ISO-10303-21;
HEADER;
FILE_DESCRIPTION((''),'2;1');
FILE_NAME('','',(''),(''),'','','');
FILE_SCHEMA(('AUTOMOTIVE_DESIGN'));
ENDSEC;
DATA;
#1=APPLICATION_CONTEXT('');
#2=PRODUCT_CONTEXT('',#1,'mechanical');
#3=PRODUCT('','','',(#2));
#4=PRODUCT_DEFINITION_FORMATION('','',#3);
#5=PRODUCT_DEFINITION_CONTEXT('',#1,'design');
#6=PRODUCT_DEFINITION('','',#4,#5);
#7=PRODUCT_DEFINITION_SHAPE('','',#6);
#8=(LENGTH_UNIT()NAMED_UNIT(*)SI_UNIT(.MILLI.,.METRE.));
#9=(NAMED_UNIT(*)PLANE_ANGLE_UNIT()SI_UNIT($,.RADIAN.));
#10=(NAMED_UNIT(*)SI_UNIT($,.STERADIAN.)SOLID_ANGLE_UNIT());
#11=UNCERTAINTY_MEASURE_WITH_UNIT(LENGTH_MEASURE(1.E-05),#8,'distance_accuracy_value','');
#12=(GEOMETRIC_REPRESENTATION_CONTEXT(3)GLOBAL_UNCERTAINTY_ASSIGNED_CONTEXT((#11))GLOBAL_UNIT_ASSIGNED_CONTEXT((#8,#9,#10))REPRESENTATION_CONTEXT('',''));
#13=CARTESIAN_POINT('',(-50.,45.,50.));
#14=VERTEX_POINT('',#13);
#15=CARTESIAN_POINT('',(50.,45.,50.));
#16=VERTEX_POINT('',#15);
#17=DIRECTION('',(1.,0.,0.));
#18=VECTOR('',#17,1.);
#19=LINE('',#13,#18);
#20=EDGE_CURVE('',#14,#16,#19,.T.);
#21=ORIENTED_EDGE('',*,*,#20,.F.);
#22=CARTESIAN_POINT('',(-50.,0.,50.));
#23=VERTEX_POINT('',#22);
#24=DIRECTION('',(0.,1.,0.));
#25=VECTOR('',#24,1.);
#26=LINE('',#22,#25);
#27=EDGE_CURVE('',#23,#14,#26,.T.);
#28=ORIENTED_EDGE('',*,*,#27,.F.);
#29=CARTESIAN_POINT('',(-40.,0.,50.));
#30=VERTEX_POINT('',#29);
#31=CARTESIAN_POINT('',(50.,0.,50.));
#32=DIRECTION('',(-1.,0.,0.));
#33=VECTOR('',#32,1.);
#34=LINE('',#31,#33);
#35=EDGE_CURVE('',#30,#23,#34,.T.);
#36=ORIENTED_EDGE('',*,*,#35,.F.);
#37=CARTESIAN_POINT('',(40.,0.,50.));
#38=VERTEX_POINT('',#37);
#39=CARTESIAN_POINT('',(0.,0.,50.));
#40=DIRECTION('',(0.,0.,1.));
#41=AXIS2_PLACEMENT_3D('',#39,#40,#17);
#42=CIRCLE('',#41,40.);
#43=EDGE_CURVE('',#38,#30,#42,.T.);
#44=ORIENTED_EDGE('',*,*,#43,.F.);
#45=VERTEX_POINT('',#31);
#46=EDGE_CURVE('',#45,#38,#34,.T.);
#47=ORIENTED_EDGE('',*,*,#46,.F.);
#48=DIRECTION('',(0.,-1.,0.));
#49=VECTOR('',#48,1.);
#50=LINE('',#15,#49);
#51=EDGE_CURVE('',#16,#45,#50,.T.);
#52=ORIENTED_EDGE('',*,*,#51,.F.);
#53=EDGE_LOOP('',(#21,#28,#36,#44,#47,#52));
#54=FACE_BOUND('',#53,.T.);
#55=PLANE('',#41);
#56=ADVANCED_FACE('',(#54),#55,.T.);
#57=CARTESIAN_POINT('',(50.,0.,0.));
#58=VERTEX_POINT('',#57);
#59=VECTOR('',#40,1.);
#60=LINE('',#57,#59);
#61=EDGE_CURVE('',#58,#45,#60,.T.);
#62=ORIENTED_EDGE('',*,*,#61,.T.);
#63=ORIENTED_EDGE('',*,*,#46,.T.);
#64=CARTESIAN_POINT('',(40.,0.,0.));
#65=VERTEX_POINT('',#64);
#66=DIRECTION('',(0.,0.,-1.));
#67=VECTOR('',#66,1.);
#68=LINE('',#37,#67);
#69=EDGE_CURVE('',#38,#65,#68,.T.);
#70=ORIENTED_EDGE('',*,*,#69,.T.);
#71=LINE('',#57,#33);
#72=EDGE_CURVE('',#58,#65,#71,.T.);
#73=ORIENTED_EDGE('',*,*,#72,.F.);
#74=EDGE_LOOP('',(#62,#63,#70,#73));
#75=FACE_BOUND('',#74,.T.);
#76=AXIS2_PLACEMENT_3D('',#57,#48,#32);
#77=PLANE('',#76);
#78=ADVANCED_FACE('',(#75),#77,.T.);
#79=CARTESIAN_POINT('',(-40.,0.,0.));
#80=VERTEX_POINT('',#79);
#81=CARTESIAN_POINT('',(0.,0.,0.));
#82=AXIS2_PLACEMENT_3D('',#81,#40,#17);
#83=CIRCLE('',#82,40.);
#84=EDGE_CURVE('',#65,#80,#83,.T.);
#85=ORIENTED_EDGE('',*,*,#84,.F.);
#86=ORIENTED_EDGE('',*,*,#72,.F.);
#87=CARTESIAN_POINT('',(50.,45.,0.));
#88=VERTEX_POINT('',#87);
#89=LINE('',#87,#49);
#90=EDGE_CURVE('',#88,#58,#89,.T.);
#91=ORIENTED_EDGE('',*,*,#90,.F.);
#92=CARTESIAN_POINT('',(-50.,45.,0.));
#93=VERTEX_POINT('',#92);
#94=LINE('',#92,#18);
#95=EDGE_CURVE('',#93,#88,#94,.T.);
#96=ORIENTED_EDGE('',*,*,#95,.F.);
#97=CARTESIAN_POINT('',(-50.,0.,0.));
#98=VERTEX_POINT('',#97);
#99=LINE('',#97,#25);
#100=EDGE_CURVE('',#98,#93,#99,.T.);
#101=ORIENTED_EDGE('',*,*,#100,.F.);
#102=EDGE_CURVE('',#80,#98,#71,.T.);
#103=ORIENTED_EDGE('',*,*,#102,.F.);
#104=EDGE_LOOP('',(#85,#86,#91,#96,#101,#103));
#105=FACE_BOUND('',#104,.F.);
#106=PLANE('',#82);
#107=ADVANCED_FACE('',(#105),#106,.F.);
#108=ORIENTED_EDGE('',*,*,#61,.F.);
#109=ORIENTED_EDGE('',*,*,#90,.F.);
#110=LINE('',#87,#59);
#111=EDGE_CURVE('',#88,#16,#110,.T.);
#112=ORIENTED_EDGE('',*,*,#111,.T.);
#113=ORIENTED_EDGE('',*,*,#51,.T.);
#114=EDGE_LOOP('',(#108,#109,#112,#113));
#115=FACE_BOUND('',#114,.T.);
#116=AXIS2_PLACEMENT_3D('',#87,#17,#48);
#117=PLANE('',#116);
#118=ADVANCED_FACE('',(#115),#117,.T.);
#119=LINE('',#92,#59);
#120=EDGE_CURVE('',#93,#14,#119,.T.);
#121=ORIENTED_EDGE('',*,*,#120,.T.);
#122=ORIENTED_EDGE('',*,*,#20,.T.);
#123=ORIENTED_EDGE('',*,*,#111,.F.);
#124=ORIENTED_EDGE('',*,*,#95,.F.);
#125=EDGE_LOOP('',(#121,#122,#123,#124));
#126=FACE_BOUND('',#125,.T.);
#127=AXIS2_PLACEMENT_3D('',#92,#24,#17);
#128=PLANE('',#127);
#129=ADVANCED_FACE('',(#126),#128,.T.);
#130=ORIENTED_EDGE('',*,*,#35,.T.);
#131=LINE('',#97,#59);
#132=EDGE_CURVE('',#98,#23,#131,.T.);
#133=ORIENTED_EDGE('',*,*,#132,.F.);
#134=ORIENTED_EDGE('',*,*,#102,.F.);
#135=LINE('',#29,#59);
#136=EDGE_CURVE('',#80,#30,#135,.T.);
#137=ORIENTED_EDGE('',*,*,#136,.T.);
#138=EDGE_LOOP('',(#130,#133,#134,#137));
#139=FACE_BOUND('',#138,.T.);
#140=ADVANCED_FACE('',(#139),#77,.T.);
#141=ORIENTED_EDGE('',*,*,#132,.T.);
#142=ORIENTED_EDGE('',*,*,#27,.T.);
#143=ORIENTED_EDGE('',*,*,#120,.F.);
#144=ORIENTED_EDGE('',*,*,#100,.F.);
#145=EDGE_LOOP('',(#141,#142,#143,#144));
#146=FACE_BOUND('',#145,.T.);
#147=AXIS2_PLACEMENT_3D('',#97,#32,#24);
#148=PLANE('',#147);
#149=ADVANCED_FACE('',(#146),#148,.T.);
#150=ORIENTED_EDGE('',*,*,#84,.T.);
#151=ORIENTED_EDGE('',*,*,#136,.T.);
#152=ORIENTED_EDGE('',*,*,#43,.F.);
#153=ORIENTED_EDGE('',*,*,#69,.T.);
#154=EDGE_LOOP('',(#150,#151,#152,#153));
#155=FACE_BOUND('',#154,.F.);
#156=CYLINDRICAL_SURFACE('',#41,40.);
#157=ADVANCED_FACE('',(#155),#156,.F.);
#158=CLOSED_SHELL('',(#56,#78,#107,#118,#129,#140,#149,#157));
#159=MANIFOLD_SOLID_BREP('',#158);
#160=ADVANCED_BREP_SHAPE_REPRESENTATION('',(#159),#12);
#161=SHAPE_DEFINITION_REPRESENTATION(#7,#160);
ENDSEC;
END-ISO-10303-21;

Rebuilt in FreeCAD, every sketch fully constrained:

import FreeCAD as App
import Part
import Sketcher

V = App.Vector


def add_polygon(sketch, points):
    """Adds a closed chain of lines whose ends are joined by coincident constraints."""
    first, n = sketch.GeometryCount, len(points)
    for a, b in zip(points, points[1:] + points[:1]):
        sketch.addGeometry(Part.LineSegment(App.Vector(*a, 0), App.Vector(*b, 0)), False)
    for i in range(n):
        sketch.addConstraint(Sketcher.Constraint("Coincident", first + i, 2, first + (i + 1) % n, 1))

doc = App.newDocument("Part")
body = doc.addObject("PartDesign::Body", "Body")

sketch1 = body.newObject("Sketcher::SketchObject", "Sketch")
sketch1.AttachmentSupport = (doc.getObject("XY_Plane"), [""])
sketch1.MapMode = "FlatFace"
add_polygon(sketch1, [(50, 45), (-50, 45), (-50, 0), (50, 0)])
sketch1.addConstraint(Sketcher.Constraint("Horizontal", 0))
sketch1.addConstraint(Sketcher.Constraint("Vertical", 1))
sketch1.addConstraint(Sketcher.Constraint("Horizontal", 2))
sketch1.addConstraint(Sketcher.Constraint("Vertical", 3))
sketch1.addConstraint(Sketcher.Constraint("Symmetric", 1, 2, 2, 2, -1, 1))
sketch1.addConstraint(Sketcher.Constraint("DistanceX", 0, 2, 0, 1, 100.0))
sketch1.addConstraint(Sketcher.Constraint("DistanceY", 1, 2, 1, 1, 45.0))
pad1 = body.newObject("PartDesign::Pad", "Pad")
pad1.Profile = sketch1
pad1.Length = 50

sketch2 = body.newObject("Sketcher::SketchObject", "Sketch001")
sketch2.AttachmentSupport = (doc.getObject("XY_Plane"), [""])
sketch2.MapMode = "FlatFace"
sketch2.AttachmentOffset = App.Placement(V(0, 0, 50), App.Rotation())
sketch2.addGeometry(Part.Circle(V(0, 0, 0), V(0, 0, 1), 40), False)
sketch2.addConstraint(Sketcher.Constraint("Coincident", 0, 3, -1, 1))
sketch2.addConstraint(Sketcher.Constraint("Diameter", 0, 80.0))
pocket1 = body.newObject("PartDesign::Pocket", "Pocket")
pocket1.Profile = sketch2
pocket1.Length = 50

doc.recompute()
